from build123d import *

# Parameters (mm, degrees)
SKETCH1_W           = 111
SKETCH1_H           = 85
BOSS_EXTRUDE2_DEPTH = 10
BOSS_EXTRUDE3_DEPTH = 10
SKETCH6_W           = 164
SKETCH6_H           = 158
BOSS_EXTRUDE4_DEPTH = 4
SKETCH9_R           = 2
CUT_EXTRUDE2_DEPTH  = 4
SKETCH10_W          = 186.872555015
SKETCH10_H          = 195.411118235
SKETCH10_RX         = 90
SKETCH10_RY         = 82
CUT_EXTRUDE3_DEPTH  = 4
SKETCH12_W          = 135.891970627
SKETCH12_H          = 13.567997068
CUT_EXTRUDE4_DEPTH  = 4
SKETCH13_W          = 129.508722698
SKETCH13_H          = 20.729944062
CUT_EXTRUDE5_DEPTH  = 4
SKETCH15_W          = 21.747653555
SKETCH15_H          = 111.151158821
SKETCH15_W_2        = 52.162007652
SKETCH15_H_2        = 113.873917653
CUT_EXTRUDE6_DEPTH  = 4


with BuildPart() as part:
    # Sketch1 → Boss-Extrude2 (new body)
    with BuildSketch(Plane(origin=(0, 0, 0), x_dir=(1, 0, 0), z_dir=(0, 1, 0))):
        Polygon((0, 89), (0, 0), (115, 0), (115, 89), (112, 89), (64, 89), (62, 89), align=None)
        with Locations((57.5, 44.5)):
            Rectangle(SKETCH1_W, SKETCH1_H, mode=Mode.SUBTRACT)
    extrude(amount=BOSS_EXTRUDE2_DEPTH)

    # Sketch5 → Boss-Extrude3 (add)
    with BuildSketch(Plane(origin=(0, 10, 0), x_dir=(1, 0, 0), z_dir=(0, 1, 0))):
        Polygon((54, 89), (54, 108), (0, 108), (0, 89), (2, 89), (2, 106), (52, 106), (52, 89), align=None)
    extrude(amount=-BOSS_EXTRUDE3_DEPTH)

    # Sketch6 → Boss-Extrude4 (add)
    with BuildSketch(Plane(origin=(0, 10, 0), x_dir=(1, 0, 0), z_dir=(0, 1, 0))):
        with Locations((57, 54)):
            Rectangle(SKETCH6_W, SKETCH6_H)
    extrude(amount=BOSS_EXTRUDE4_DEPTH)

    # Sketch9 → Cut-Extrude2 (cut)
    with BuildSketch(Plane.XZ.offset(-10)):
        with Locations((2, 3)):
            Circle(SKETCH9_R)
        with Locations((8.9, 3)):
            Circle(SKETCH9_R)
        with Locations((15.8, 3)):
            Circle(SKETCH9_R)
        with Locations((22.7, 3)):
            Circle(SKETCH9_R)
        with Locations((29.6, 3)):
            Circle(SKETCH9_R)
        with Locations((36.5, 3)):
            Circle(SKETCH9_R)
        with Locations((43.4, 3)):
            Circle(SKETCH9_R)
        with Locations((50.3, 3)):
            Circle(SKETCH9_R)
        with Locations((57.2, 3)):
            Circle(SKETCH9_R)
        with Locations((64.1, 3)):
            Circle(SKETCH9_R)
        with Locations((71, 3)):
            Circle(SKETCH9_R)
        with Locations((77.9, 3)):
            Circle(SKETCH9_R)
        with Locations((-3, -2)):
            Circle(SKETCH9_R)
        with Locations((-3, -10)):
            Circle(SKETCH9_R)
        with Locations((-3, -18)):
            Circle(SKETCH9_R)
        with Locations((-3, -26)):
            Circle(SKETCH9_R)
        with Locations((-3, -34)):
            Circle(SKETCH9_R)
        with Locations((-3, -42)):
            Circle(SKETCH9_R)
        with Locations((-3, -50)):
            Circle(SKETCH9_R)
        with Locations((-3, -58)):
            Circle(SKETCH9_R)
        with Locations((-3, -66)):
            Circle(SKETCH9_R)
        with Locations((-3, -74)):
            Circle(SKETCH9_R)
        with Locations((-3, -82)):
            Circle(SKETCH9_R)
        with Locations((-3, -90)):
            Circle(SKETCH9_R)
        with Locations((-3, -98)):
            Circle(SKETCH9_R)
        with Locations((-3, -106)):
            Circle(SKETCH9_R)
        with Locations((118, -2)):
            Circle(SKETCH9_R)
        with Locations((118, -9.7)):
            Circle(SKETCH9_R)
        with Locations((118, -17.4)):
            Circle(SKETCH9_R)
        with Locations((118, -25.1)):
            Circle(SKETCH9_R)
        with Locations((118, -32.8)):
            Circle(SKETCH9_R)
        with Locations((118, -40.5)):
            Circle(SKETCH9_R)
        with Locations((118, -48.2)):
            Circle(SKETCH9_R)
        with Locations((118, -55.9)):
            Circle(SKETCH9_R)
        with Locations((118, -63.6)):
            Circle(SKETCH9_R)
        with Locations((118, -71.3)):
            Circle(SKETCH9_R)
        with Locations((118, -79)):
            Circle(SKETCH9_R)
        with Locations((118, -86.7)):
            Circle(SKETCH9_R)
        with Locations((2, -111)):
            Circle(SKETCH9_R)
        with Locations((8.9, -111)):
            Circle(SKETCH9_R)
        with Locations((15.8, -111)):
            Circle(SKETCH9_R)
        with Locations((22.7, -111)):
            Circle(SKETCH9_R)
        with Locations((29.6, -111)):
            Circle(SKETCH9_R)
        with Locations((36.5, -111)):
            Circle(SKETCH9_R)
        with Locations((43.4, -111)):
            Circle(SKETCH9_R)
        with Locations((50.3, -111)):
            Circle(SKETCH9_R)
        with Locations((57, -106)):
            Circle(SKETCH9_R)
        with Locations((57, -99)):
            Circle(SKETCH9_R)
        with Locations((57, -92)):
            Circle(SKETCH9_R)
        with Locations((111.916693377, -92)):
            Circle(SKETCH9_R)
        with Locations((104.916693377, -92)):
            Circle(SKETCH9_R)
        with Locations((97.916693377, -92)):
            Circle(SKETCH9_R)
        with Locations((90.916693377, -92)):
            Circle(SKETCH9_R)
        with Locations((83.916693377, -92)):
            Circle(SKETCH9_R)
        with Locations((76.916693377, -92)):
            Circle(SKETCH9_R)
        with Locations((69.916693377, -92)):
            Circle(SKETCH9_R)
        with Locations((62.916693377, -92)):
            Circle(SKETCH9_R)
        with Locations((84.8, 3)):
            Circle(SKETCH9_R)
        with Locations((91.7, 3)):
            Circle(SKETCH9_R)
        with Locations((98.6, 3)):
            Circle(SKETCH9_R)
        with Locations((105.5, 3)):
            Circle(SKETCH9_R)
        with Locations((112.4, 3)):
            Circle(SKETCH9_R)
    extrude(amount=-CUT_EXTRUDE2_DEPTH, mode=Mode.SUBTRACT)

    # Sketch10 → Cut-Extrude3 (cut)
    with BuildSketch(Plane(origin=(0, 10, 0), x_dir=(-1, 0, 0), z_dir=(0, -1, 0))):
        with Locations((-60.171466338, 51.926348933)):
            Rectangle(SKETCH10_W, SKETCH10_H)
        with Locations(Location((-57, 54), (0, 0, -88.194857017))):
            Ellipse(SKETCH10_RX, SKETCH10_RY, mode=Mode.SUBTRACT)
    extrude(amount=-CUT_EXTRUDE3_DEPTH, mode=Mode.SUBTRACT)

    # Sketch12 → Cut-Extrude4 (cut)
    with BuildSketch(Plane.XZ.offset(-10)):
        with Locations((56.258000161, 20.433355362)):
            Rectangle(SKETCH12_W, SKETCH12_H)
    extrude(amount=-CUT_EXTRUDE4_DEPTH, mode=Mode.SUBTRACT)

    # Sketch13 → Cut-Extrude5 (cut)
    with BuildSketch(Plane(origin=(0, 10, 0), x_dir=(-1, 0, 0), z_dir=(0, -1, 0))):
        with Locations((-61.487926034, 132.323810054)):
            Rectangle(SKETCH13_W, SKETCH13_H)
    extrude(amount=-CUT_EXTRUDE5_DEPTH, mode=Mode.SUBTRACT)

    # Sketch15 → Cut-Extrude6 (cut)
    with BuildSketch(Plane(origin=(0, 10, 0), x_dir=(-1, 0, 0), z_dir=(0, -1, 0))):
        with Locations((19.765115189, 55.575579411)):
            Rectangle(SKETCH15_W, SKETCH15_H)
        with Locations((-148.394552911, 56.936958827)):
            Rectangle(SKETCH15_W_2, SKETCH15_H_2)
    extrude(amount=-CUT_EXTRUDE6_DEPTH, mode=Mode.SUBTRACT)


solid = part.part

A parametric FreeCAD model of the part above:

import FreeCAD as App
import Part
import Sketcher
Q = App.Units.Quantity

doc = App.newDocument("Part")
body = doc.addObject("PartDesign::Body", "Body")

# Sketch on XZ plane
sketch1 = body.newObject("Sketcher::SketchObject", "Sketch")
sketch1.AttachmentSupport = (doc.getObject("XZ_Plane"), [""])
sketch1.MapMode = "FlatFace"
sketch1.addGeometry([
    Part.LineSegment(App.Vector(0, -89, 0), App.Vector(0, 0, 0)),  # 0
    Part.LineSegment(App.Vector(0, 0, 0), App.Vector(115, 0, 0)),  # 1
    Part.LineSegment(App.Vector(115, 0, 0), App.Vector(115, -89, 0)),  # 2
    Part.LineSegment(App.Vector(115, -89, 0), App.Vector(0, -89, 0)),  # 3
    Part.LineSegment(App.Vector(113, -2, 0), App.Vector(2, -2, 0)),  # 4
    Part.LineSegment(App.Vector(2, -2, 0), App.Vector(2, -87, 0)),  # 5
    Part.LineSegment(App.Vector(2, -87, 0), App.Vector(113, -87, 0)),  # 6
    Part.LineSegment(App.Vector(113, -87, 0), App.Vector(113, -2, 0)),  # 7
], False)
sketch1.addConstraint([
    Sketcher.Constraint("Coincident", 0, 2, 1, 1),
    Sketcher.Constraint("Coincident", 1, 2, 2, 1),
    Sketcher.Constraint("Coincident", 2, 2, 3, 1),
    Sketcher.Constraint("Coincident", 3, 2, 0, 1),
    Sketcher.Constraint("Coincident", 4, 2, 5, 1),
    Sketcher.Constraint("Coincident", 5, 2, 6, 1),
    Sketcher.Constraint("Coincident", 6, 2, 7, 1),
    Sketcher.Constraint("Coincident", 7, 2, 4, 1),
    Sketcher.Constraint("Vertical", 0),
    Sketcher.Constraint("Horizontal", 1),
    Sketcher.Constraint("Vertical", 2),
    Sketcher.Constraint("Horizontal", 3),
    Sketcher.Constraint("Horizontal", 4),
    Sketcher.Constraint("Vertical", 5),
    Sketcher.Constraint("Horizontal", 6),
    Sketcher.Constraint("Vertical", 7),
    Sketcher.Constraint("Coincident", 0, 2, -1, 1),
    Sketcher.Constraint("DistanceX", 1, 1, 1, 2, Q("115 mm")),
    Sketcher.Constraint("DistanceX", 4, 2, 4, 1, Q("111 mm")),
    Sketcher.Constraint("DistanceY", 0, 1, 0, 2, Q("89 mm")),
    Sketcher.Constraint("DistanceY", 5, 2, 5, 1, Q("85 mm")),
    Sketcher.Constraint("DistanceX", -1, 1, 4, 2, Q("2 mm")),
    Sketcher.Constraint("DistanceY", 4, 2, -1, 1, Q("2 mm")),
])
pad1 = body.newObject("PartDesign::Pad", "Pad")
pad1.Profile = sketch1
pad1.Length = 10
pad1.Reversed = True

# Sketch on XZ plane
sketch2 = body.newObject("Sketcher::SketchObject", "Sketch001")
sketch2.AttachmentSupport = (doc.getObject("XZ_Plane"), [""])
sketch2.MapMode = "FlatFace"
sketch2.AttachmentOffset = App.Placement(App.Vector(0, 0, -10), App.Rotation())
sketch2.addGeometry([
    Part.LineSegment(App.Vector(54, -89, 0), App.Vector(54, -108, 0)),  # 0
    Part.LineSegment(App.Vector(54, -108, 0), App.Vector(0, -108, 0)),  # 1
    Part.LineSegment(App.Vector(0, -108, 0), App.Vector(0, -89, 0)),  # 2
    Part.LineSegment(App.Vector(0, -89, 0), App.Vector(2, -89, 0)),  # 3
    Part.LineSegment(App.Vector(2, -89, 0), App.Vector(2, -106, 0)),  # 4
    Part.LineSegment(App.Vector(2, -106, 0), App.Vector(52, -106, 0)),  # 5
    Part.LineSegment(App.Vector(52, -106, 0), App.Vector(52, -89, 0)),  # 6
    Part.LineSegment(App.Vector(52, -89, 0), App.Vector(54, -89, 0)),  # 7
], False)
sketch2.addConstraint([
    Sketcher.Constraint("Coincident", 0, 2, 1, 1),
    Sketcher.Constraint("Coincident", 1, 2, 2, 1),
    Sketcher.Constraint("Coincident", 2, 2, 3, 1),
    Sketcher.Constraint("Coincident", 3, 2, 4, 1),
    Sketcher.Constraint("Coincident", 4, 2, 5, 1),
    Sketcher.Constraint("Coincident", 5, 2, 6, 1),
    Sketcher.Constraint("Coincident", 6, 2, 7, 1),
    Sketcher.Constraint("Coincident", 7, 2, 0, 1),
    Sketcher.Constraint("Vertical", 0),
    Sketcher.Constraint("Horizontal", 1),
    Sketcher.Constraint("Vertical", 2),
    Sketcher.Constraint("Horizontal", 3),
    Sketcher.Constraint("Vertical", 4),
    Sketcher.Constraint("Horizontal", 5),
    Sketcher.Constraint("Vertical", 6),
    Sketcher.Constraint("Horizontal", 7),
    Sketcher.Constraint("PointOnObject", 1, 2, -2),
    Sketcher.Constraint("Horizontal", 3, 2, 6, 2),
    Sketcher.Constraint("Equal", 3, 7),
    Sketcher.Constraint("DistanceX", 1, 2, 1, 1, Q("54 mm")),
    Sketcher.Constraint("DistanceX", 3, 1, 3, 2, Q("2 mm")),
    Sketcher.Constraint("DistanceY", 0, 2, 0, 1, Q("19 mm")),
    Sketcher.Constraint("DistanceY", 4, 2, 4, 1, Q("17 mm")),
    Sketcher.Constraint("DistanceY", 0, 2, -1, 1, Q("108 mm")),
])
pad2 = body.newObject("PartDesign::Pad", "Pad001")
pad2.Profile = sketch2
pad2.Length = 10

# Sketch on XZ plane
sketch3 = body.newObject("Sketcher::SketchObject", "Sketch002")
sketch3.AttachmentSupport = (doc.getObject("XZ_Plane"), [""])
sketch3.MapMode = "FlatFace"
sketch3.AttachmentOffset = App.Placement(App.Vector(0, 0, -10), App.Rotation())
sketch3.addGeometry([
    Part.LineSegment(App.Vector(-25, -133, 0), App.Vector(-25, 25, 0)),
    Part.LineSegment(App.Vector(-25, 25, 0), App.Vector(139, 25, 0)),
    Part.LineSegment(App.Vector(139, 25, 0), App.Vector(139, -133, 0)),
    Part.LineSegment(App.Vector(139, -133, 0), App.Vector(-25, -133, 0)),
], False)
sketch3.addConstraint([
    Sketcher.Constraint("Coincident", 0, 2, 1, 1),
    Sketcher.Constraint("Coincident", 1, 2, 2, 1),
    Sketcher.Constraint("Coincident", 2, 2, 3, 1),
    Sketcher.Constraint("Coincident", 3, 2, 0, 1),
    Sketcher.Constraint("Vertical", 0),
    Sketcher.Constraint("Horizontal", 1),
    Sketcher.Constraint("Vertical", 2),
    Sketcher.Constraint("Horizontal", 3),
    Sketcher.Constraint("DistanceX", 1, 1, 1, 2, Q("164 mm")),
    Sketcher.Constraint("DistanceY", 0, 1, 0, 2, Q("158 mm")),
    Sketcher.Constraint("DistanceX", 0, 2, -1, 1, Q("25 mm")),
    Sketcher.Constraint("DistanceY", -1, 1, 0, 2, Q("25 mm")),
])
pad3 = body.newObject("PartDesign::Pad", "Pad002")
pad3.Profile = sketch3
pad3.Length = 4
pad3.Reversed = True

# Sketch on XZ plane
sketch4 = body.newObject("Sketcher::SketchObject", "Sketch003")
sketch4.AttachmentSupport = (doc.getObject("XZ_Plane"), [""])
sketch4.MapMode = "FlatFace"
sketch4.AttachmentOffset = App.Placement(App.Vector(0, 0, -10), App.Rotation())
sketch4.addGeometry([
    Part.Circle(App.Vector(2, 3, 0), App.Vector(0, 0, 1), 2),  # 0
    Part.Circle(App.Vector(8.9, 3, 0), App.Vector(0, 0, 1), 2),  # 1
    Part.Circle(App.Vector(15.8, 3, 0), App.Vector(0, 0, 1), 2),  # 2
    Part.Circle(App.Vector(22.7, 3, 0), App.Vector(0, 0, 1), 2),  # 3
    Part.Circle(App.Vector(29.6, 3, 0), App.Vector(0, 0, 1), 2),  # 4
    Part.Circle(App.Vector(36.5, 3, 0), App.Vector(0, 0, 1), 2),  # 5
    Part.Circle(App.Vector(43.4, 3, 0), App.Vector(0, 0, 1), 2),  # 6
    Part.Circle(App.Vector(50.3, 3, 0), App.Vector(0, 0, 1), 2),  # 7
    Part.Circle(App.Vector(57.2, 3, 0), App.Vector(0, 0, 1), 2),  # 8
    Part.Circle(App.Vector(64.1, 3, 0), App.Vector(0, 0, 1), 2),  # 9
    Part.Circle(App.Vector(71, 3, 0), App.Vector(0, 0, 1), 2),  # 10
    Part.Circle(App.Vector(77.9, 3, 0), App.Vector(0, 0, 1), 2),  # 11
    Part.Circle(App.Vector(-3, -2, 0), App.Vector(0, 0, 1), 2),  # 12
    Part.Circle(App.Vector(-3, -10, 0), App.Vector(0, 0, 1), 2),  # 13
    Part.Circle(App.Vector(-3, -18, 0), App.Vector(0, 0, 1), 2),  # 14
    Part.Circle(App.Vector(-3, -26, 0), App.Vector(0, 0, 1), 2),  # 15
    Part.Circle(App.Vector(-3, -34, 0), App.Vector(0, 0, 1), 2),  # 16
    Part.Circle(App.Vector(-3, -42, 0), App.Vector(0, 0, 1), 2),  # 17
    Part.Circle(App.Vector(-3, -50, 0), App.Vector(0, 0, 1), 2),  # 18
    Part.Circle(App.Vector(-3, -58, 0), App.Vector(0, 0, 1), 2),  # 19
    Part.Circle(App.Vector(-3, -66, 0), App.Vector(0, 0, 1), 2),  # 20
    Part.Circle(App.Vector(-3, -74, 0), App.Vector(0, 0, 1), 2),  # 21
    Part.Circle(App.Vector(-3, -82, 0), App.Vector(0, 0, 1), 2),  # 22
    Part.Circle(App.Vector(-3, -90, 0), App.Vector(0, 0, 1), 2),  # 23
    Part.Circle(App.Vector(-3, -98, 0), App.Vector(0, 0, 1), 2),  # 24
    Part.Circle(App.Vector(-3, -106, 0), App.Vector(0, 0, 1), 2),  # 25
    Part.Circle(App.Vector(118, -2, 0), App.Vector(0, 0, 1), 2),  # 26
    Part.Circle(App.Vector(118, -9.7, 0), App.Vector(0, 0, 1), 2),  # 27
    Part.Circle(App.Vector(118, -17.4, 0), App.Vector(0, 0, 1), 2),  # 28
    Part.Circle(App.Vector(118, -25.1, 0), App.Vector(0, 0, 1), 2),  # 29
    Part.Circle(App.Vector(118, -32.8, 0), App.Vector(0, 0, 1), 2),  # 30
    Part.Circle(App.Vector(118, -40.5, 0), App.Vector(0, 0, 1), 2),  # 31
    Part.Circle(App.Vector(118, -48.2, 0), App.Vector(0, 0, 1), 2),  # 32
    Part.Circle(App.Vector(118, -55.9, 0), App.Vector(0, 0, 1), 2),  # 33
    Part.Circle(App.Vector(118, -63.6, 0), App.Vector(0, 0, 1), 2),  # 34
    Part.Circle(App.Vector(118, -71.3, 0), App.Vector(0, 0, 1), 2),  # 35
    Part.Circle(App.Vector(118, -79, 0), App.Vector(0, 0, 1), 2),  # 36
    Part.Circle(App.Vector(118, -86.7, 0), App.Vector(0, 0, 1), 2),  # 37
    Part.Circle(App.Vector(2, -111, 0), App.Vector(0, 0, 1), 2),  # 38
    Part.Circle(App.Vector(8.9, -111, 0), App.Vector(0, 0, 1), 2),  # 39
    Part.Circle(App.Vector(15.8, -111, 0), App.Vector(0, 0, 1), 2),  # 40
    Part.Circle(App.Vector(22.7, -111, 0), App.Vector(0, 0, 1), 2),  # 41
    Part.Circle(App.Vector(29.6, -111, 0), App.Vector(0, 0, 1), 2),  # 42
    Part.Circle(App.Vector(36.5, -111, 0), App.Vector(0, 0, 1), 2),  # 43
    Part.Circle(App.Vector(43.4, -111, 0), App.Vector(0, 0, 1), 2),  # 44
    Part.Circle(App.Vector(50.3, -111, 0), App.Vector(0, 0, 1), 2),  # 45
    Part.Circle(App.Vector(57, -106, 0), App.Vector(0, 0, 1), 2),  # 46
    Part.Circle(App.Vector(57, -99, 0), App.Vector(0, 0, 1), 2),  # 47
    Part.Circle(App.Vector(57, -92, 0), App.Vector(0, 0, 1), 2),  # 48
    Part.Circle(App.Vector(111.916693, -92, 0), App.Vector(0, 0, 1), 2),  # 49
    Part.Circle(App.Vector(104.916693, -92, 0), App.Vector(0, 0, 1), 2),  # 50
    Part.Circle(App.Vector(97.916693, -92, 0), App.Vector(0, 0, 1), 2),  # 51
    Part.Circle(App.Vector(90.916693, -92, 0), App.Vector(0, 0, 1), 2),  # 52
    Part.Circle(App.Vector(83.916693, -92, 0), App.Vector(0, 0, 1), 2),  # 53
    Part.Circle(App.Vector(76.916693, -92, 0), App.Vector(0, 0, 1), 2),  # 54
    Part.Circle(App.Vector(69.916693, -92, 0), App.Vector(0, 0, 1), 2),  # 55
    Part.Circle(App.Vector(62.916693, -92, 0), App.Vector(0, 0, 1), 2),  # 56
    Part.Circle(App.Vector(84.8, 3, 0), App.Vector(0, 0, 1), 2),  # 57
    Part.Circle(App.Vector(91.7, 3, 0), App.Vector(0, 0, 1), 2),  # 58
    Part.Circle(App.Vector(98.6, 3, 0), App.Vector(0, 0, 1), 2),  # 59
    Part.Circle(App.Vector(105.5, 3, 0), App.Vector(0, 0, 1), 2),  # 60
    Part.Circle(App.Vector(112.4, 3, 0), App.Vector(0, 0, 1), 2),  # 61
], False)
sketch4.addConstraint([
    Sketcher.Constraint("Equal", 0, 1),
    Sketcher.Constraint("Equal", 1, 2),
    Sketcher.Constraint("Equal", 2, 3),
    Sketcher.Constraint("Equal", 3, 4),
    Sketcher.Constraint("Equal", 4, 5),
    Sketcher.Constraint("Equal", 5, 6),
    Sketcher.Constraint("Equal", 6, 7),
    Sketcher.Constraint("Equal", 7, 8),
    Sketcher.Constraint("Equal", 8, 9),
    Sketcher.Constraint("Equal", 9, 10),
    Sketcher.Constraint("Equal", 10, 11),
    Sketcher.Constraint("Equal", 11, 12),
    Sketcher.Constraint("Equal", 12, 13),
    Sketcher.Constraint("Equal", 13, 14),
    Sketcher.Constraint("Equal", 14, 15),
    Sketcher.Constraint("Equal", 15, 16),
    Sketcher.Constraint("Equal", 16, 17),
    Sketcher.Constraint("Equal", 17, 18),
    Sketcher.Constraint("Equal", 18, 19),
    Sketcher.Constraint("Equal", 19, 20),
    Sketcher.Constraint("Equal", 20, 21),
    Sketcher.Constraint("Equal", 21, 22),
    Sketcher.Constraint("Equal", 22, 23),
    Sketcher.Constraint("Equal", 23, 24),
    Sketcher.Constraint("Equal", 24, 25),
    Sketcher.Constraint("Equal", 25, 26),
    Sketcher.Constraint("Equal", 26, 27),
    Sketcher.Constraint("Equal", 27, 28),
    Sketcher.Constraint("Equal", 28, 29),
    Sketcher.Constraint("Equal", 29, 30),
    Sketcher.Constraint("Equal", 30, 31),
    Sketcher.Constraint("Equal", 31, 32),
    Sketcher.Constraint("Equal", 32, 33),
    Sketcher.Constraint("Equal", 33, 34),
    Sketcher.Constraint("Equal", 34, 35),
    Sketcher.Constraint("Equal", 35, 36),
    Sketcher.Constraint("Equal", 36, 37),
    Sketcher.Constraint("Equal", 37, 38),
    Sketcher.Constraint("Equal", 38, 39),
    Sketcher.Constraint("Equal", 39, 40),
    Sketcher.Constraint("Equal", 40, 41),
    Sketcher.Constraint("Equal", 41, 42),
    Sketcher.Constraint("Equal", 42, 43),
    Sketcher.Constraint("Equal", 43, 44),
    Sketcher.Constraint("Equal", 44, 45),
    Sketcher.Constraint("Equal", 45, 46),
    Sketcher.Constraint("Equal", 46, 47),
    Sketcher.Constraint("Equal", 47, 48),
    Sketcher.Constraint("Equal", 48, 49),
    Sketcher.Constraint("Equal", 49, 50),
    Sketcher.Constraint("Equal", 50, 51),
    Sketcher.Constraint("Equal", 51, 52),
    Sketcher.Constraint("Equal", 52, 53),
    Sketcher.Constraint("Equal", 53, 54),
    Sketcher.Constraint("Equal", 54, 55),
    Sketcher.Constraint("Equal", 55, 56),
    Sketcher.Constraint("Equal", 56, 57),
    Sketcher.Constraint("Equal", 57, 58),
    Sketcher.Constraint("Equal", 58, 59),
    Sketcher.Constraint("Equal", 59, 60),
    Sketcher.Constraint("Equal", 60, 61),
    Sketcher.Constraint("Horizontal", 0, 3, 1, 3),
    Sketcher.Constraint("Horizontal", 1, 3, 2, 3),
    Sketcher.Constraint("Horizontal", 2, 3, 3, 3),
    Sketcher.Constraint("Horizontal", 3, 3, 4, 3),
    Sketcher.Constraint("Horizontal", 4, 3, 5, 3),
    Sketcher.Constraint("Horizontal", 5, 3, 6, 3),
    Sketcher.Constraint("Horizontal", 6, 3, 7, 3),
    Sketcher.Constraint("Horizontal", 7, 3, 8, 3),
    Sketcher.Constraint("Horizontal", 8, 3, 9, 3),
    Sketcher.Constraint("Horizontal", 9, 3, 10, 3),
    Sketcher.Constraint("Horizontal", 10, 3, 11, 3),
    Sketcher.Constraint("Horizontal", 12, 3, 26, 3),
    Sketcher.Constraint("Horizontal", 38, 3, 39, 3),
    Sketcher.Constraint("Horizontal", 39, 3, 40, 3),
    Sketcher.Constraint("Horizontal", 40, 3, 41, 3),
    Sketcher.Constraint("Horizontal", 41, 3, 42, 3),
    Sketcher.Constraint("Horizontal", 42, 3, 43, 3),
    Sketcher.Constraint("Horizontal", 43, 3, 44, 3),
    Sketcher.Constraint("Horizontal", 44, 3, 45, 3),
    Sketcher.Constraint("Horizontal", 25, 3, 46, 3),
    Sketcher.Constraint("Horizontal", 48, 3, 49, 3),
    Sketcher.Constraint("Horizontal", 49, 3, 50, 3),
    Sketcher.Constraint("Horizontal", 50, 3, 51, 3),
    Sketcher.Constraint("Horizontal", 51, 3, 52, 3),
    Sketcher.Constraint("Horizontal", 52, 3, 53, 3),
    Sketcher.Constraint("Horizontal", 53, 3, 54, 3),
    Sketcher.Constraint("Horizontal", 54, 3, 55, 3),
    Sketcher.Constraint("Horizontal", 55, 3, 56, 3),
    Sketcher.Constraint("Horizontal", 11, 3, 57, 3),
    Sketcher.Constraint("Horizontal", 57, 3, 58, 3),
    Sketcher.Constraint("Horizontal", 58, 3, 59, 3),
    Sketcher.Constraint("Horizontal", 59, 3, 60, 3),
    Sketcher.Constraint("Horizontal", 60, 3, 61, 3),
    Sketcher.Constraint("Vertical", 12, 3, 13, 3),
    Sketcher.Constraint("Vertical", 13, 3, 14, 3),
    Sketcher.Constraint("Vertical", 14, 3, 15, 3),
    Sketcher.Constraint("Vertical", 15, 3, 16, 3),
    Sketcher.Constraint("Vertical", 16, 3, 17, 3),
    Sketcher.Constraint("Vertical", 17, 3, 18, 3),
    Sketcher.Constraint("Vertical", 18, 3, 19, 3),
    Sketcher.Constraint("Vertical", 19, 3, 20, 3),
    Sketcher.Constraint("Vertical", 20, 3, 21, 3),
    Sketcher.Constraint("Vertical", 21, 3, 22, 3),
    Sketcher.Constraint("Vertical", 22, 3, 23, 3),
    Sketcher.Constraint("Vertical", 23, 3, 24, 3),
    Sketcher.Constraint("Vertical", 24, 3, 25, 3),
    Sketcher.Constraint("Vertical", 26, 3, 27, 3),
    Sketcher.Constraint("Vertical", 27, 3, 28, 3),
    Sketcher.Constraint("Vertical", 28, 3, 29, 3),
    Sketcher.Constraint("Vertical", 29, 3, 30, 3),
    Sketcher.Constraint("Vertical", 30, 3, 31, 3),
    Sketcher.Constraint("Vertical", 31, 3, 32, 3),
    Sketcher.Constraint("Vertical", 32, 3, 33, 3),
    Sketcher.Constraint("Vertical", 33, 3, 34, 3),
    Sketcher.Constraint("Vertical", 34, 3, 35, 3),
    Sketcher.Constraint("Vertical", 35, 3, 36, 3),
    Sketcher.Constraint("Vertical", 36, 3, 37, 3),
    Sketcher.Constraint("Vertical", 0, 3, 38, 3),
    Sketcher.Constraint("Vertical", 1, 3, 39, 3),
    Sketcher.Constraint("Vertical", 2, 3, 40, 3),
    Sketcher.Constraint("Vertical", 3, 3, 41, 3),
    Sketcher.Constraint("Vertical", 4, 3, 42, 3),
    Sketcher.Constraint("Vertical", 5, 3, 43, 3),
    Sketcher.Constraint("Vertical", 6, 3, 44, 3),
    Sketcher.Constraint("Vertical", 7, 3, 45, 3),
    Sketcher.Constraint("Vertical", 46, 3, 47, 3),
    Sketcher.Constraint("Vertical", 47, 3, 48, 3),
    Sketcher.Constraint("Diameter", 0, Q("4 mm")),
    Sketcher.Constraint("DistanceX", -1, 1, 0, 3, Q("2 mm")),
    Sketcher.Constraint("DistanceY", -1, 1, 0, 3, Q("3 mm")),
    Sketcher.Constraint("DistanceX", -1, 1, 10, 3, Q("71 mm")),
    Sketcher.Constraint("DistanceX", 12, 3, -1, 1, Q("3 mm")),
    Sketcher.Constraint("DistanceY", 12, 3, -1, 1, Q("2 mm")),
    Sketcher.Constraint("DistanceY", 13, 3, -1, 1, Q("10 mm")),
    Sketcher.Constraint("DistanceY", 14, 3, -1, 1, Q("18 mm")),
    Sketcher.Constraint("DistanceY", 15, 3, -1, 1, Q("26 mm")),
    Sketcher.Constraint("DistanceY", 16, 3, -1, 1, Q("34 mm")),
    Sketcher.Constraint("DistanceY", 17, 3, -1, 1, Q("42 mm")),
    Sketcher.Constraint("DistanceY", 18, 3, -1, 1, Q("50 mm")),
    Sketcher.Constraint("DistanceY", 19, 3, -1, 1, Q("58 mm")),
    Sketcher.Constraint("DistanceY", 20, 3, -1, 1, Q("66 mm")),
    Sketcher.Constraint("DistanceY", 21, 3, -1, 1, Q("74 mm")),
    Sketcher.Constraint("DistanceY", 22, 3, -1, 1, Q("82 mm")),
    Sketcher.Constraint("DistanceY", 23, 3, -1, 1, Q("90 mm")),
    Sketcher.Constraint("DistanceY", 24, 3, -1, 1, Q("98 mm")),
    Sketcher.Constraint("DistanceY", 25, 3, -1, 1, Q("106 mm")),
    Sketcher.Constraint("DistanceX", -1, 1, 26, 3, Q("118 mm")),
    Sketcher.Constraint("DistanceY", 36, 3, -1, 1, Q("79 mm")),
    Sketcher.Constraint("DistanceY", 38, 3, -1, 1, Q("111 mm")),
    Sketcher.Constraint("DistanceX", -1, 1, 46, 3, Q("57 mm")),
    Sketcher.Constraint("DistanceY", 47, 3, -1, 1, Q("99 mm")),
    Sketcher.Constraint("DistanceY", 48, 3, -1, 1, Q("92 mm")),
    Sketcher.Constraint("DistanceX", -1, 1, 1, 3, Q("8.9 mm")),
    Sketcher.Constraint("DistanceX", -1, 1, 2, 3, Q("15.8 mm")),
    Sketcher.Constraint("DistanceX", -1, 1, 3, 3, Q("22.7 mm")),
    Sketcher.Constraint("DistanceX", -1, 1, 4, 3, Q("29.6 mm")),
    Sketcher.Constraint("DistanceX", -1, 1, 5, 3, Q("36.5 mm")),
    Sketcher.Constraint("DistanceX", -1, 1, 6, 3, Q("43.4 mm")),
    Sketcher.Constraint("DistanceX", -1, 1, 7, 3, Q("50.3 mm")),
    Sketcher.Constraint("DistanceX", -1, 1, 8, 3, Q("57.2 mm")),
    Sketcher.Constraint("DistanceX", -1, 1, 9, 3, Q("64.1 mm")),
    Sketcher.Constraint("DistanceX", -1, 1, 11, 3, Q("77.9 mm")),
    Sketcher.Constraint("DistanceY", 27, 3, -1, 1, Q("9.7 mm")),
    Sketcher.Constraint("DistanceY", 28, 3, -1, 1, Q("17.4 mm")),
    Sketcher.Constraint("DistanceY", 29, 3, -1, 1, Q("25.1 mm")),
    Sketcher.Constraint("DistanceY", 30, 3, -1, 1, Q("32.8 mm")),
    Sketcher.Constraint("DistanceY", 31, 3, -1, 1, Q("40.5 mm")),
    Sketcher.Constraint("DistanceY", 32, 3, -1, 1, Q("48.2 mm")),
    Sketcher.Constraint("DistanceY", 33, 3, -1, 1, Q("55.9 mm")),
    Sketcher.Constraint("DistanceY", 34, 3, -1, 1, Q("63.6 mm")),
    Sketcher.Constraint("DistanceY", 35, 3, -1, 1, Q("71.3 mm")),
    Sketcher.Constraint("DistanceY", 37, 3, -1, 1, Q("86.7 mm")),
    Sketcher.Constraint("DistanceX", -1, 1, 57, 3, Q("84.8 mm")),
    Sketcher.Constraint("DistanceX", -1, 1, 58, 3, Q("91.7 mm")),
    Sketcher.Constraint("DistanceX", -1, 1, 59, 3, Q("98.6 mm")),
    Sketcher.Constraint("DistanceX", -1, 1, 60, 3, Q("105.5 mm")),
    Sketcher.Constraint("DistanceX", -1, 1, 61, 3, Q("112.4 mm")),
    Sketcher.Constraint("DistanceX", -1, 1, 49, 3, Q("111.916693 mm")),
    Sketcher.Constraint("DistanceX", -1, 1, 50, 3, Q("104.916693 mm")),
    Sketcher.Constraint("DistanceX", -1, 1, 51, 3, Q("97.916693 mm")),
    Sketcher.Constraint("DistanceX", -1, 1, 52, 3, Q("90.916693 mm")),
    Sketcher.Constraint("DistanceX", -1, 1, 53, 3, Q("83.916693 mm")),
    Sketcher.Constraint("DistanceX", -1, 1, 54, 3, Q("76.916693 mm")),
    Sketcher.Constraint("DistanceX", -1, 1, 55, 3, Q("69.916693 mm")),
    Sketcher.Constraint("DistanceX", -1, 1, 56, 3, Q("62.916693 mm")),
])
pocket1 = body.newObject("PartDesign::Pocket", "Pocket")
pocket1.Profile = sketch4
pocket1.Length = 4

# Sketch on XZ plane
sketch5 = body.newObject("Sketcher::SketchObject", "Sketch004")
sketch5.AttachmentSupport = (doc.getObject("XZ_Plane"), [""])
sketch5.MapMode = "FlatFace"
sketch5.AttachmentOffset = App.Placement(App.Vector(0, 0, -10), App.Rotation())
sketch5.addGeometry([
    Part.LineSegment(App.Vector(153.607744, -149.631908, 0), App.Vector(153.607744, 45.77921, 0)),  # 0
    Part.LineSegment(App.Vector(153.607744, 45.77921, 0), App.Vector(-33.264811, 45.77921, 0)),  # 1
    Part.LineSegment(App.Vector(-33.264811, 45.77921, 0), App.Vector(-33.264811, -149.631908, 0)),  # 2
    Part.LineSegment(App.Vector(-33.264811, -149.631908, 0), App.Vector(153.607744, -149.631908, 0)),  # 3
    Part.Ellipse(App.Vector(54.164957, 35.955336, 0), App.Vector(-24.959306, -56.583039, 0), App.Vector(57, -54, 0)),  # 4
], False)
sketch5.addConstraint([
    Sketcher.Constraint("Block", 4),
    Sketcher.Constraint("Coincident", 0, 2, 1, 1),
    Sketcher.Constraint("Coincident", 1, 2, 2, 1),
    Sketcher.Constraint("Coincident", 2, 2, 3, 1),
    Sketcher.Constraint("Coincident", 3, 2, 0, 1),
    Sketcher.Constraint("Vertical", 0),
    Sketcher.Constraint("Horizontal", 1),
    Sketcher.Constraint("Vertical", 2),
    Sketcher.Constraint("Horizontal", 3),
    Sketcher.Constraint("DistanceY", 0, 1, 0, 2, Q("195.411118 mm")),
    Sketcher.Constraint("DistanceX", 1, 2, 1, 1, Q("186.872555 mm")),
    Sketcher.Constraint("DistanceY", -1, 1, 0, 2, Q("45.77921 mm")),
    Sketcher.Constraint("DistanceX", 1, 2, -1, 1, Q("33.264811 mm")),
])
pocket2 = body.newObject("PartDesign::Pocket", "Pocket001")
pocket2.Profile = sketch5
pocket2.Length = 4

# Sketch on XZ plane
sketch6 = body.newObject("Sketcher::SketchObject", "Sketch005")
sketch6.AttachmentSupport = (doc.getObject("XZ_Plane"), [""])
sketch6.MapMode = "FlatFace"
sketch6.AttachmentOffset = App.Placement(App.Vector(0, 0, -10), App.Rotation())
sketch6.addGeometry([
    Part.LineSegment(App.Vector(-11.687985, 27.217354, 0), App.Vector(-11.687985, 13.649357, 0)),
    Part.LineSegment(App.Vector(-11.687985, 13.649357, 0), App.Vector(124.203985, 13.649357, 0)),
    Part.LineSegment(App.Vector(124.203985, 13.649357, 0), App.Vector(124.203985, 27.217354, 0)),
    Part.LineSegment(App.Vector(124.203985, 27.217354, 0), App.Vector(-11.687985, 27.217354, 0)),
], False)
sketch6.addConstraint([
    Sketcher.Constraint("Coincident", 0, 2, 1, 1),
    Sketcher.Constraint("Coincident", 1, 2, 2, 1),
    Sketcher.Constraint("Coincident", 2, 2, 3, 1),
    Sketcher.Constraint("Coincident", 3, 2, 0, 1),
    Sketcher.Constraint("Vertical", 0),
    Sketcher.Constraint("Horizontal", 1),
    Sketcher.Constraint("Vertical", 2),
    Sketcher.Constraint("Horizontal", 3),
    Sketcher.Constraint("DistanceX", 1, 1, 1, 2, Q("135.891971 mm")),
    Sketcher.Constraint("DistanceY", 0, 2, 0, 1, Q("13.567997 mm")),
    Sketcher.Constraint("DistanceX", 0, 2, -1, 1, Q("11.687985 mm")),
    Sketcher.Constraint("DistanceY", -1, 1, 0, 2, Q("13.649357 mm")),
])
pocket3 = body.newObject("PartDesign::Pocket", "Pocket002")
pocket3.Profile = sketch6
pocket3.Length = 4

# Sketch on XZ plane
sketch7 = body.newObject("Sketcher::SketchObject", "Sketch006")
sketch7.AttachmentSupport = (doc.getObject("XZ_Plane"), [""])
sketch7.MapMode = "FlatFace"
sketch7.AttachmentOffset = App.Placement(App.Vector(0, 0, -10), App.Rotation())
sketch7.addGeometry([
    Part.LineSegment(App.Vector(126.242287, -142.688782, 0), App.Vector(126.242287, -121.958838, 0)),
    Part.LineSegment(App.Vector(126.242287, -121.958838, 0), App.Vector(-3.266435, -121.958838, 0)),
    Part.LineSegment(App.Vector(-3.266435, -121.958838, 0), App.Vector(-3.266435, -142.688782, 0)),
    Part.LineSegment(App.Vector(-3.266435, -142.688782, 0), App.Vector(126.242287, -142.688782, 0)),
], False)
sketch7.addConstraint([
    Sketcher.Constraint("Coincident", 0, 2, 1, 1),
    Sketcher.Constraint("Coincident", 1, 2, 2, 1),
    Sketcher.Constraint("Coincident", 2, 2, 3, 1),
    Sketcher.Constraint("Coincident", 3, 2, 0, 1),
    Sketcher.Constraint("Vertical", 0),
    Sketcher.Constraint("Horizontal", 1),
    Sketcher.Constraint("Vertical", 2),
    Sketcher.Constraint("Horizontal", 3),
    Sketcher.Constraint("DistanceX", 1, 2, 1, 1, Q("129.508723 mm")),
    Sketcher.Constraint("DistanceY", 0, 1, 0, 2, Q("20.729944 mm")),
    Sketcher.Constraint("DistanceY", 0, 2, -1, 1, Q("121.958838 mm")),
    Sketcher.Constraint("DistanceX", -1, 1, 0, 2, Q("126.242287 mm")),
])
pocket4 = body.newObject("PartDesign::Pocket", "Pocket003")
pocket4.Profile = sketch7
pocket4.Length = 4

# Sketch on XZ plane
sketch8 = body.newObject("Sketcher::SketchObject", "Sketch007")
sketch8.AttachmentSupport = (doc.getObject("XZ_Plane"), [""])
sketch8.MapMode = "FlatFace"
sketch8.AttachmentOffset = App.Placement(App.Vector(0, 0, -10), App.Rotation())
sketch8.addGeometry([
    Part.LineSegment(App.Vector(-8.891288, -111.151159, 0), App.Vector(-8.891288, 0, 0)),  # 0
    Part.LineSegment(App.Vector(-8.891288, 0, 0), App.Vector(-30.638942, 0, 0)),  # 1
    Part.LineSegment(App.Vector(-30.638942, 0, 0), App.Vector(-30.638942, -111.151159, 0)),  # 2
    Part.LineSegment(App.Vector(-30.638942, -111.151159, 0), App.Vector(-8.891288, -111.151159, 0)),  # 3
    Part.LineSegment(App.Vector(174.475557, -113.873918, 0), App.Vector(174.475557, 0, 0)),  # 4
    Part.LineSegment(App.Vector(174.475557, 0, 0), App.Vector(122.313549, 0, 0)),  # 5
    Part.LineSegment(App.Vector(122.313549, 0, 0), App.Vector(122.313549, -113.873918, 0)),  # 6
    Part.LineSegment(App.Vector(122.313549, -113.873918, 0), App.Vector(174.475557, -113.873918, 0)),  # 7
], False)
sketch8.addConstraint([
    Sketcher.Constraint("Coincident", 0, 2, 1, 1),
    Sketcher.Constraint("Coincident", 1, 2, 2, 1),
    Sketcher.Constraint("Coincident", 2, 2, 3, 1),
    Sketcher.Constraint("Coincident", 3, 2, 0, 1),
    Sketcher.Constraint("Coincident", 4, 2, 5, 1),
    Sketcher.Constraint("Coincident", 5, 2, 6, 1),
    Sketcher.Constraint("Coincident", 6, 2, 7, 1),
    Sketcher.Constraint("Coincident", 7, 2, 4, 1),
    Sketcher.Constraint("Vertical", 0),
    Sketcher.Constraint("Horizontal", 1),
    Sketcher.Constraint("Vertical", 2),
    Sketcher.Constraint("Horizontal", 3),
    Sketcher.Constraint("Vertical", 4),
    Sketcher.Constraint("Horizontal", 5),
    Sketcher.Constraint("Vertical", 6),
    Sketcher.Constraint("Horizontal", 7),
    Sketcher.Constraint("PointOnObject", 0, 2, -1),
    Sketcher.Constraint("PointOnObject", 4, 2, -1),
    Sketcher.Constraint("DistanceY", 0, 1, 0, 2, Q("111.151159 mm")),
    Sketcher.Constraint("DistanceX", 1, 2, 4, 2, Q("205.114499 mm")),
    Sketcher.Constraint("DistanceX", 1, 2, 1, 1, Q("21.747654 mm")),
    Sketcher.Constraint("DistanceX", 5, 2, 5, 1, Q("52.162008 mm")),
    Sketcher.Constraint("DistanceY", 4, 1, 4, 2, Q("113.873918 mm")),
    Sketcher.Constraint("DistanceX", 0, 2, -1, 1, Q("8.891288 mm")),
])
pocket5 = body.newObject("PartDesign::Pocket", "Pocket004")
pocket5.Profile = sketch8
pocket5.Length = 4

doc.recompute()
